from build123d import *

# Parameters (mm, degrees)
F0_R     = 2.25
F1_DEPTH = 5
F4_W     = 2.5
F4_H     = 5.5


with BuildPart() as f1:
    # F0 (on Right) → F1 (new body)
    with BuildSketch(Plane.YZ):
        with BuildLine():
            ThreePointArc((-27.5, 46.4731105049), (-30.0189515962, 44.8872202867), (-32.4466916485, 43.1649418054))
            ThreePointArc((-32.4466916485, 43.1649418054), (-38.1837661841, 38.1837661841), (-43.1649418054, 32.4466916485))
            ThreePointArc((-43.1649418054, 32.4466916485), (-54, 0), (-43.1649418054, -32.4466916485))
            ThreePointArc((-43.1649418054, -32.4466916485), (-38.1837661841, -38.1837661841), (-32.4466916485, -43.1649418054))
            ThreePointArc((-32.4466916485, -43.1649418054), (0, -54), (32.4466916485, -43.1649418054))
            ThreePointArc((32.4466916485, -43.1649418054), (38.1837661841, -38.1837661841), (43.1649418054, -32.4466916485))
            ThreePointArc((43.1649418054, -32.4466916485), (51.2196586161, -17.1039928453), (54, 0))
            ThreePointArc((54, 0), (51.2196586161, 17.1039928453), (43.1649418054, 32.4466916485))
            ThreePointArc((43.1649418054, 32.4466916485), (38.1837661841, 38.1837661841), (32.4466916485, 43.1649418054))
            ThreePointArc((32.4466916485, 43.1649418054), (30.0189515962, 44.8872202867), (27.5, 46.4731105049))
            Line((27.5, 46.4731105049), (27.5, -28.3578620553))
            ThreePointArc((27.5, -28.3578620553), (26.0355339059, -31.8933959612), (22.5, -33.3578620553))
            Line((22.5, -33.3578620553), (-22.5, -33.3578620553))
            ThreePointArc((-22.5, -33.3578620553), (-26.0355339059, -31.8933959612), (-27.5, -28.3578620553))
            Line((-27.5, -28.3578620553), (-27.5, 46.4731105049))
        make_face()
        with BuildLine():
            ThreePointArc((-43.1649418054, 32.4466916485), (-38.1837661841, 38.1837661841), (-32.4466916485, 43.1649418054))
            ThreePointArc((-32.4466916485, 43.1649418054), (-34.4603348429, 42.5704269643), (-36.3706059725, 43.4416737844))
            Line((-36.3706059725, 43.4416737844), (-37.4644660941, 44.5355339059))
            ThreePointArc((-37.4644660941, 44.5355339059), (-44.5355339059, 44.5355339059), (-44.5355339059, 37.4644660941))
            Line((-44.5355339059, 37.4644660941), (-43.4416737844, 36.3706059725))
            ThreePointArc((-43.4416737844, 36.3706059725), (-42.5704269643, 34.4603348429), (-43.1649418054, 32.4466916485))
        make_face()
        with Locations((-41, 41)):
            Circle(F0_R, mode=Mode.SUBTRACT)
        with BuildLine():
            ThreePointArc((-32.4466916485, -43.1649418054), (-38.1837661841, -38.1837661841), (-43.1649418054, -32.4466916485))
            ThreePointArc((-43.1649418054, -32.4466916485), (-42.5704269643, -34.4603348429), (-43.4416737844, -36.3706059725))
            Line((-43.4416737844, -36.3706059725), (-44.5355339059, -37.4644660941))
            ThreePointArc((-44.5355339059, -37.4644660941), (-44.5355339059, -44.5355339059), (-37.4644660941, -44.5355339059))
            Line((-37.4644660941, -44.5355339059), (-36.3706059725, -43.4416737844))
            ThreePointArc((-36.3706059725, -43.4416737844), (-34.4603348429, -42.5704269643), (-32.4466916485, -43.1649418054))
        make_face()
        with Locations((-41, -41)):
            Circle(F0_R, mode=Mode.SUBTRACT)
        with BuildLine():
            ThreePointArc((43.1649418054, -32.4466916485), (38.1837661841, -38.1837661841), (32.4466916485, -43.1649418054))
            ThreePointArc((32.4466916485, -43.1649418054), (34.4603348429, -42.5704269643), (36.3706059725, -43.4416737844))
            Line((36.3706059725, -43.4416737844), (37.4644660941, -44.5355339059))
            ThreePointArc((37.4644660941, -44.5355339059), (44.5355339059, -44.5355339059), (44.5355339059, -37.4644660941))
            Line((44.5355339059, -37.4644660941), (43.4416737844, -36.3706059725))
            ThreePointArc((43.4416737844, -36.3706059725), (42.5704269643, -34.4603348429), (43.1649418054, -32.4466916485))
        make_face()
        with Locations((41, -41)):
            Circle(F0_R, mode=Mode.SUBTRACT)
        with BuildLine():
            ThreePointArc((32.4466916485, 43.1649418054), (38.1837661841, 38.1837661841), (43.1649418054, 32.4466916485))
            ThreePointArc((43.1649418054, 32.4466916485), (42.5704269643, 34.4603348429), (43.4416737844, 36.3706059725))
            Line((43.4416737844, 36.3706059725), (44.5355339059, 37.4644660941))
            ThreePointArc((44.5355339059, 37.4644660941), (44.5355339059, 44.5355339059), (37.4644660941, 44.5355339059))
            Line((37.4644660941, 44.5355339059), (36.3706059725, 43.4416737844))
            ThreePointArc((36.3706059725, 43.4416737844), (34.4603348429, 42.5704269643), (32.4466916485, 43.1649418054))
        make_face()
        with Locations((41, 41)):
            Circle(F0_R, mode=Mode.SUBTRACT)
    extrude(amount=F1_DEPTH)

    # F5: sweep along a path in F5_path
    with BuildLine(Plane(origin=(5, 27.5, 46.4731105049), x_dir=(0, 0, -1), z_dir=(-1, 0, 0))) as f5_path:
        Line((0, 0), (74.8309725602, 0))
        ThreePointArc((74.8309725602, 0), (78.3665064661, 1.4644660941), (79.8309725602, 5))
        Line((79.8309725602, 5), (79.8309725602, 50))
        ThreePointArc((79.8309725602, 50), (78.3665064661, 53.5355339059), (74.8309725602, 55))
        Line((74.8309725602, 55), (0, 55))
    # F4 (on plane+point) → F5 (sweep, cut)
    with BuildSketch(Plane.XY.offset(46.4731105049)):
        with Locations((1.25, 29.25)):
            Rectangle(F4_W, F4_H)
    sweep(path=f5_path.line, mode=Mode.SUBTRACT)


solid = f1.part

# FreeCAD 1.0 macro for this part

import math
import FreeCAD as App
import Part
import Sketcher
Q = App.Units.Quantity


def add_polygon(sketch, points):
    """Adds a closed chain of lines whose ends are joined by coincident constraints."""
    first, n = sketch.GeometryCount, len(points)
    for a, b in zip(points, points[1:] + points[:1]):
        sketch.addGeometry(Part.LineSegment(App.Vector(*a, 0), App.Vector(*b, 0)), False)
    for i in range(n):
        sketch.addConstraint(Sketcher.Constraint("Coincident", first + i, 2, first + (i + 1) % n, 1))

doc = App.newDocument("Part")
body = doc.addObject("PartDesign::Body", "Body")

sketch1 = doc.addObject("Sketcher::SketchObject", "Sketch")
body.addObject(sketch1)
sketch1.AttachmentSupport = (doc.YZ_Plane, [""])
sketch1.MapMode = "FlatFace"
sketch1.addGeometry(Part.ArcOfCircle(Part.Circle(App.Vector(0, 0, 0), App.Vector(0, 0, 1), 54), math.radians(120.614502), math.radians(126.93185)), False)
sketch1.addGeometry(Part.ArcOfCircle(Part.Circle(App.Vector(-34.249286, 45.562994, 0), App.Vector(0, 0, 1), 3), math.radians(-135), math.radians(-53.06815)), False)
sketch1.addGeometry(Part.LineSegment(App.Vector(-36.370606, 43.441674, 0), App.Vector(-37.464466, 44.535534, 0)), False)
sketch1.addGeometry(Part.ArcOfCircle(Part.Circle(App.Vector(-41, 41, 0), App.Vector(0, 0, 1), 5), math.radians(45), math.radians(225)), False)
sketch1.addGeometry(Part.LineSegment(App.Vector(-44.535534, 37.464466, 0), App.Vector(-43.441674, 36.370606, 0)), False)
sketch1.addGeometry(Part.ArcOfCircle(Part.Circle(App.Vector(-45.562994, 34.249286, 0), App.Vector(0, 0, 1), 3), math.radians(-36.93185), math.radians(45)), False)
sketch1.addGeometry(Part.ArcOfCircle(Part.Circle(App.Vector(0, 0, 0), App.Vector(0, 0, 1), 54), math.radians(143.06815), math.radians(216.931849)), False)
sketch1.addGeometry(Part.ArcOfCircle(Part.Circle(App.Vector(-45.562994, -34.249286, 0), App.Vector(0, 0, 1), 3), math.radians(-45), math.radians(36.93185)), False)
sketch1.addGeometry(Part.LineSegment(App.Vector(-43.441674, -36.370606, 0), App.Vector(-44.535534, -37.464466, 0)), False)
sketch1.addGeometry(Part.ArcOfCircle(Part.Circle(App.Vector(-41, -41, 0), App.Vector(0, 0, 1), 5), math.radians(135), math.radians(315)), False)
sketch1.addGeometry(Part.LineSegment(App.Vector(-37.464466, -44.535534, 0), App.Vector(-36.370606, -43.441674, 0)), False)
sketch1.addGeometry(Part.ArcOfCircle(Part.Circle(App.Vector(-34.249286, -45.562994, 0), App.Vector(0, 0, 1), 3), math.radians(53.06815), math.radians(135)), False)
sketch1.addGeometry(Part.ArcOfCircle(Part.Circle(App.Vector(0, 0, 0), App.Vector(0, 0, 1), 54), math.radians(-126.93185), math.radians(-53.068151)), False)
sketch1.addGeometry(Part.ArcOfCircle(Part.Circle(App.Vector(34.249286, -45.562994, 0), App.Vector(0, 0, 1), 3), math.radians(45), math.radians(126.93185)), False)
sketch1.addGeometry(Part.LineSegment(App.Vector(36.370606, -43.441674, 0), App.Vector(37.464466, -44.535534, 0)), False)
sketch1.addGeometry(Part.ArcOfCircle(Part.Circle(App.Vector(41, -41, 0), App.Vector(0, 0, 1), 5), math.radians(-135), math.radians(45)), False)
sketch1.addGeometry(Part.LineSegment(App.Vector(44.535534, -37.464466, 0), App.Vector(43.441674, -36.370606, 0)), False)
sketch1.addGeometry(Part.ArcOfCircle(Part.Circle(App.Vector(45.562994, -34.249286, 0), App.Vector(0, 0, 1), 3), math.radians(143.06815), math.radians(225)), False)
sketch1.addGeometry(Part.ArcOfCircle(Part.Circle(App.Vector(0, 0, 0), App.Vector(0, 0, 1), 54), math.radians(-36.93185), math.radians(0)), False)
sketch1.addGeometry(Part.ArcOfCircle(Part.Circle(App.Vector(0, 0, 0), App.Vector(0, 0, 1), 54), math.radians(0), math.radians(36.93185)), False)
sketch1.addGeometry(Part.ArcOfCircle(Part.Circle(App.Vector(45.562994, 34.249286, 0), App.Vector(0, 0, 1), 3), math.radians(135), math.radians(216.93185)), False)
sketch1.addGeometry(Part.LineSegment(App.Vector(43.441674, 36.370606, 0), App.Vector(44.535534, 37.464466, 0)), False)
sketch1.addGeometry(Part.ArcOfCircle(Part.Circle(App.Vector(41, 41, 0), App.Vector(0, 0, 1), 5), math.radians(-45), math.radians(135)), False)
sketch1.addGeometry(Part.LineSegment(App.Vector(37.464466, 44.535534, 0), App.Vector(36.370606, 43.441674, 0)), False)
sketch1.addGeometry(Part.ArcOfCircle(Part.Circle(App.Vector(34.249286, 45.562994, 0), App.Vector(0, 0, 1), 3), math.radians(-126.93185), math.radians(-45)), False)
sketch1.addGeometry(Part.ArcOfCircle(Part.Circle(App.Vector(0, 0, 0), App.Vector(0, 0, 1), 54), math.radians(53.06815), math.radians(59.385498)), False)
sketch1.addGeometry(Part.LineSegment(App.Vector(27.5, 46.473111, 0), App.Vector(27.5, -28.357862, 0)), False)
sketch1.addGeometry(Part.ArcOfCircle(Part.Circle(App.Vector(22.5, -28.357862, 0), App.Vector(0, 0, 1), 5), math.radians(-90), math.radians(0)), False)
sketch1.addGeometry(Part.LineSegment(App.Vector(22.5, -33.357862, 0), App.Vector(-22.5, -33.357862, 0)), False)
sketch1.addGeometry(Part.ArcOfCircle(Part.Circle(App.Vector(-22.5, -28.357862, 0), App.Vector(0, 0, 1), 5), math.radians(180), math.radians(270)), False)
sketch1.addGeometry(Part.LineSegment(App.Vector(-27.5, -28.357862, 0), App.Vector(-27.5, 46.473111, 0)), False)
sketch1.addGeometry(Part.Circle(App.Vector(-41, -41, 0), App.Vector(0, 0, 1), 2.25), False)
sketch1.addGeometry(Part.Circle(App.Vector(41, -41, 0), App.Vector(0, 0, 1), 2.25), False)
sketch1.addGeometry(Part.Circle(App.Vector(-41, 41, 0), App.Vector(0, 0, 1), 2.25), False)
sketch1.addGeometry(Part.Circle(App.Vector(41, 41, 0), App.Vector(0, 0, 1), 2.25), False)
sketch1.addConstraint(Sketcher.Constraint("Tangent", 0, 2, 1, 2))
sketch1.addConstraint(Sketcher.Constraint("Tangent", 1, 1, 2, 1))
sketch1.addConstraint(Sketcher.Constraint("Tangent", 2, 2, 3, 1))
sketch1.addConstraint(Sketcher.Constraint("Tangent", 3, 2, 4, 1))
sketch1.addConstraint(Sketcher.Constraint("Tangent", 4, 2, 5, 2))
sketch1.addConstraint(Sketcher.Constraint("Tangent", 5, 1, 6, 1))
sketch1.addConstraint(Sketcher.Constraint("Tangent", 6, 2, 7, 2))
sketch1.addConstraint(Sketcher.Constraint("Tangent", 7, 1, 8, 1))
sketch1.addConstraint(Sketcher.Constraint("Tangent", 8, 2, 9, 1))
sketch1.addConstraint(Sketcher.Constraint("Tangent", 9, 2, 10, 1))
sketch1.addConstraint(Sketcher.Constraint("Tangent", 10, 2, 11, 2))
sketch1.addConstraint(Sketcher.Constraint("Tangent", 11, 1, 12, 1))
sketch1.addConstraint(Sketcher.Constraint("Tangent", 12, 2, 13, 2))
sketch1.addConstraint(Sketcher.Constraint("Tangent", 13, 1, 14, 1))
sketch1.addConstraint(Sketcher.Constraint("Tangent", 14, 2, 15, 1))
sketch1.addConstraint(Sketcher.Constraint("Tangent", 15, 2, 16, 1))
sketch1.addConstraint(Sketcher.Constraint("Tangent", 16, 2, 17, 2))
sketch1.addConstraint(Sketcher.Constraint("Tangent", 17, 1, 18, 1))
sketch1.addConstraint(Sketcher.Constraint("Tangent", 18, 2, 19, 1))
sketch1.addConstraint(Sketcher.Constraint("Tangent", 19, 2, 20, 2))
sketch1.addConstraint(Sketcher.Constraint("Tangent", 20, 1, 21, 1))
sketch1.addConstraint(Sketcher.Constraint("Tangent", 21, 2, 22, 1))
sketch1.addConstraint(Sketcher.Constraint("Tangent", 22, 2, 23, 1))
sketch1.addConstraint(Sketcher.Constraint("Tangent", 23, 2, 24, 2))
sketch1.addConstraint(Sketcher.Constraint("Tangent", 24, 1, 25, 1))
sketch1.addConstraint(Sketcher.Constraint("Coincident", 25, 2, 26, 1))
sketch1.addConstraint(Sketcher.Constraint("Tangent", 26, 2, 27, 2))
sketch1.addConstraint(Sketcher.Constraint("Tangent", 27, 1, 28, 1))
sketch1.addConstraint(Sketcher.Constraint("Tangent", 28, 2, 29, 2))
sketch1.addConstraint(Sketcher.Constraint("Tangent", 29, 1, 30, 1))
sketch1.addConstraint(Sketcher.Constraint("Coincident", 30, 2, 0, 1))
sketch1.addConstraint(Sketcher.Constraint("Vertical", 26))
sketch1.addConstraint(Sketcher.Constraint("Horizontal", 28))
sketch1.addConstraint(Sketcher.Constraint("Vertical", 30))
sketch1.addConstraint(Sketcher.Constraint("Coincident", 0, 3, -1, 1))
sketch1.addConstraint(Sketcher.Constraint("Coincident", 6, 3, -1, 1))
sketch1.addConstraint(Sketcher.Constraint("Coincident", 12, 3, -1, 1))
sketch1.addConstraint(Sketcher.Constraint("Coincident", 18, 3, -1, 1))
sketch1.addConstraint(Sketcher.Constraint("Coincident", 25, 3, -1, 1))
sketch1.addConstraint(Sketcher.Constraint("Coincident", 31, 3, 9, 3))
sketch1.addConstraint(Sketcher.Constraint("Coincident", 32, 3, 15, 3))
sketch1.addConstraint(Sketcher.Constraint("Coincident", 33, 3, 3, 3))
sketch1.addConstraint(Sketcher.Constraint("Coincident", 34, 3, 22, 3))
sketch1.addConstraint(Sketcher.Constraint("Equal", 1, 5))
sketch1.addConstraint(Sketcher.Constraint("Equal", 0, 6))
sketch1.addConstraint(Sketcher.Constraint("Equal", 5, 7))
sketch1.addConstraint(Sketcher.Constraint("Equal", 3, 9))
sketch1.addConstraint(Sketcher.Constraint("Equal", 7, 11))
sketch1.addConstraint(Sketcher.Constraint("Equal", 6, 12))
sketch1.addConstraint(Sketcher.Constraint("Equal", 11, 13))
sketch1.addConstraint(Sketcher.Constraint("Equal", 9, 15))
sketch1.addConstraint(Sketcher.Constraint("Equal", 13, 17))
sketch1.addConstraint(Sketcher.Constraint("Equal", 12, 18))
sketch1.addConstraint(Sketcher.Constraint("Equal", 18, 19))
sketch1.addConstraint(Sketcher.Constraint("Equal", 17, 20))
sketch1.addConstraint(Sketcher.Constraint("Equal", 15, 22))
sketch1.addConstraint(Sketcher.Constraint("Equal", 20, 24))
sketch1.addConstraint(Sketcher.Constraint("Equal", 19, 25))
sketch1.addConstraint(Sketcher.Constraint("Equal", 22, 27))
sketch1.addConstraint(Sketcher.Constraint("Equal", 27, 29))
sketch1.addConstraint(Sketcher.Constraint("Equal", 31, 32))
sketch1.addConstraint(Sketcher.Constraint("Equal", 32, 33))
sketch1.addConstraint(Sketcher.Constraint("Equal", 33, 34))
sketch1.addConstraint(Sketcher.Constraint("Symmetric", 3, 3, 15, 3, -1, 1))
sketch1.addConstraint(Sketcher.Constraint("Symmetric", 9, 3, 22, 3, -1, 1))
sketch1.addConstraint(Sketcher.Constraint("Symmetric", 9, 3, 15, 3, -2))
sketch1.addConstraint(Sketcher.Constraint("PointOnObject", 18, 2, -1))
sketch1.addConstraint(Sketcher.Constraint("Parallel", 2, 4))
sketch1.addConstraint(Sketcher.Constraint("Perpendicular", 4, 8))
sketch1.addConstraint(Sketcher.Constraint("Parallel", 8, 10))
sketch1.addConstraint(Sketcher.Constraint("Perpendicular", 10, 14))
sketch1.addConstraint(Sketcher.Constraint("Parallel", 14, 16))
sketch1.addConstraint(Sketcher.Constraint("Perpendicular", 16, 21))
sketch1.addConstraint(Sketcher.Constraint("Parallel", 21, 23))
sketch1.addConstraint(Sketcher.Constraint("Horizontal", 11, 3, 13, 3))
sketch1.addConstraint(Sketcher.Constraint("Horizontal", 25, 2, 30, 2))
sketch1.addConstraint(Sketcher.Constraint("Equal", 2, 4))
sketch1.addConstraint(Sketcher.Constraint("Radius", 0, Q("54 mm")))
sketch1.addConstraint(Sketcher.Constraint("Radius", 1, Q("3 mm")))
sketch1.addConstraint(Sketcher.Constraint("Radius", 3, Q("5 mm")))
sketch1.addConstraint(Sketcher.Constraint("Diameter", 31, Q("4.5 mm")))
sketch1.addConstraint(Sketcher.Constraint("DistanceX", 28, 2, 28, 1, Q("45 mm")))
sketch1.addConstraint(Sketcher.Constraint("DistanceX", 3, 3, -1, 1, Q("41 mm")))
sketch1.addConstraint(Sketcher.Constraint("DistanceY", 26, 2, 26, 1, Q("74.830973 mm")))
pad1 = doc.addObject("PartDesign::Pad", "Pad")
body.addObject(pad1)
pad1.Profile = sketch1
pad1.Length = 5

sketch2 = doc.addObject("Sketcher::SketchObject", "Sketch001")
body.addObject(sketch2)
sketch2.AttachmentSupport = (doc.XY_Plane, [""])
sketch2.MapMode = "FlatFace"
sketch2.AttachmentOffset = App.Placement(App.Vector(0, 0, 46.473111), App.Rotation())
add_polygon(sketch2, [(0, 32), (0, 26.5), (2.5, 26.5), (2.5, 32)])
sketch2.addConstraint(Sketcher.Constraint("Vertical", 0))
sketch2.addConstraint(Sketcher.Constraint("Horizontal", 1))
sketch2.addConstraint(Sketcher.Constraint("Vertical", 2))
sketch2.addConstraint(Sketcher.Constraint("Horizontal", 3))
sketch2.addConstraint(Sketcher.Constraint("PointOnObject", 0, 2, -2))
sketch2.addConstraint(Sketcher.Constraint("DistanceX", 1, 1, 1, 2, Q("2.5 mm")))
sketch2.addConstraint(Sketcher.Constraint("DistanceY", 0, 2, 0, 1, Q("5.5 mm")))
sketch2.addConstraint(Sketcher.Constraint("DistanceY", -1, 1, 2, 2, Q("32 mm")))

sketch3 = doc.addObject("Sketcher::SketchObject", "Sketch002")
body.addObject(sketch3)
sketch3.AttachmentSupport = (doc.YZ_Plane, [""])
sketch3.MapMode = "FlatFace"
sketch3.AttachmentOffset = App.Placement(App.Vector(0, 0, 5), App.Rotation())
sketch3.addGeometry(Part.LineSegment(App.Vector(27.5, 46.473111, 0), App.Vector(27.5, -28.357862, 0)), False)
sketch3.addGeometry(Part.ArcOfCircle(Part.Circle(App.Vector(22.5, -28.357862, 0), App.Vector(0, 0, 1), 5), math.radians(-90), math.radians(0)), False)
sketch3.addGeometry(Part.LineSegment(App.Vector(22.5, -33.357862, 0), App.Vector(-22.5, -33.357862, 0)), False)
sketch3.addGeometry(Part.ArcOfCircle(Part.Circle(App.Vector(-22.5, -28.357862, 0), App.Vector(0, 0, 1), 5), math.radians(180), math.radians(270)), False)
sketch3.addGeometry(Part.LineSegment(App.Vector(-27.5, -28.357862, 0), App.Vector(-27.5, 46.473111, 0)), False)
sketch3.addConstraint(Sketcher.Constraint("Tangent", 0, 2, 1, 2))
sketch3.addConstraint(Sketcher.Constraint("Tangent", 1, 1, 2, 1))
sketch3.addConstraint(Sketcher.Constraint("Tangent", 2, 2, 3, 2))
sketch3.addConstraint(Sketcher.Constraint("Tangent", 3, 1, 4, 1))
sketch3.addConstraint(Sketcher.Constraint("Vertical", 0))
sketch3.addConstraint(Sketcher.Constraint("Horizontal", 2))
sketch3.addConstraint(Sketcher.Constraint("Vertical", 4))
sketch3.addConstraint(Sketcher.Constraint("Equal", 1, 3))
sketch3.addConstraint(Sketcher.Constraint("Symmetric", 0, 1, 4, 2, -2))
sketch3.addConstraint(Sketcher.Constraint("Radius", 1, Q("5 mm")))
sketch3.addConstraint(Sketcher.Constraint("DistanceX", 2, 2, 2, 1, Q("45 mm")))
sketch3.addConstraint(Sketcher.Constraint("DistanceY", 0, 2, 0, 1, Q("74.830973 mm")))
sketch3.addConstraint(Sketcher.Constraint("DistanceY", -1, 1, 0, 1, Q("46.473111 mm")))
doc.recompute()

subtractivepipe = doc.addObject("PartDesign::SubtractivePipe", "SubtractivePipe")
body.addObject(subtractivepipe)
subtractivepipe.Profile = sketch2
subtractivepipe.Spine = (sketch3, ["Edge1", "Edge2", "Edge3", "Edge4", "Edge5"])

doc.recompute()
